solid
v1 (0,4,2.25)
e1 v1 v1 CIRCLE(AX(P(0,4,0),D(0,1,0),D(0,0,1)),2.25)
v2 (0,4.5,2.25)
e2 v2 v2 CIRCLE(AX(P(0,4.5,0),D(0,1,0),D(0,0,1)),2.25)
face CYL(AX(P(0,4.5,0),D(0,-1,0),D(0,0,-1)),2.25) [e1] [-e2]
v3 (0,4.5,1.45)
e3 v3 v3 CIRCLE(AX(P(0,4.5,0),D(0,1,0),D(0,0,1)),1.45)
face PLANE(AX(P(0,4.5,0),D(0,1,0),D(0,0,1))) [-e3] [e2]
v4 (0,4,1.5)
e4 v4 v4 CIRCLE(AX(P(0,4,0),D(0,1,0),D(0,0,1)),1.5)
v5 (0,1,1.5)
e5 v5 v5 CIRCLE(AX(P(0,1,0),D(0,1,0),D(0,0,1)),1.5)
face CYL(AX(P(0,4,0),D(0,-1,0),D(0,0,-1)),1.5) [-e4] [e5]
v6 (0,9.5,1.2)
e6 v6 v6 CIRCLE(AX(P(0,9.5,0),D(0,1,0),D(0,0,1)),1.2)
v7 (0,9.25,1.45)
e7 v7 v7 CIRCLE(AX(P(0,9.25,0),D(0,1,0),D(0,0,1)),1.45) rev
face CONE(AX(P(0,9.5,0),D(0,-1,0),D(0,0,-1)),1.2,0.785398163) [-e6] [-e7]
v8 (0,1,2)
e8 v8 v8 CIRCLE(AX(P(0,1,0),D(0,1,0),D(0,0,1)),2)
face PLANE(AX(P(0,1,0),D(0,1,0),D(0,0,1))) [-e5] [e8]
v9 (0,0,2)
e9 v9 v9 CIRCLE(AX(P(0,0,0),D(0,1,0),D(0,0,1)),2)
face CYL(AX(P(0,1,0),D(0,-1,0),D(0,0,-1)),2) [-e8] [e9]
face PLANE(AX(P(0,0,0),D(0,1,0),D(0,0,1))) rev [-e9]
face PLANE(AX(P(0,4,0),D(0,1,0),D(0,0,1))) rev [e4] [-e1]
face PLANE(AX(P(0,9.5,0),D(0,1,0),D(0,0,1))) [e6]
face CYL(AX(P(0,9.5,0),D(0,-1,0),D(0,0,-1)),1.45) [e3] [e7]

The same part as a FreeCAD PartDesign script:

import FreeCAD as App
import Part
import Sketcher
from FreeCAD import Vector


def edges_at(feature, points):
    """Names of the edges that pass closest to the given points."""
    edges = feature.Shape.Edges
    near = lambda p: min(range(len(edges)), key=lambda i: edges[i].distToShape(Part.Vertex(*p))[0])
    return sorted({f"Edge{near(p) + 1}" for p in points})

doc = App.newDocument("Part")
body = doc.addObject("PartDesign::Body", "Body")

# Sketch on XZ plane
sketch1 = body.newObject("Sketcher::SketchObject", "Sketch")
sketch1.AttachmentSupport = (doc.getObject("XZ_Plane"), [""])
sketch1.MapMode = "FlatFace"
sketch1.addGeometry(Part.Circle(Vector(0, 0, 0), Vector(0, 0, 1), 2), False)
sketch1.addConstraint([
    Sketcher.Constraint("Coincident", 0, 3, -1, 1),
    Sketcher.Constraint("Diameter", 0, 4.0),
])
pad1 = body.newObject("PartDesign::Pad", "Pad")
pad1.Profile = sketch1
pad1.Length = 1
pad1.Reversed = True

# Sketch on XZ plane
sketch2 = body.newObject("Sketcher::SketchObject", "Sketch001")
sketch2.AttachmentSupport = (doc.getObject("XZ_Plane"), [""])
sketch2.MapMode = "FlatFace"
sketch2.AttachmentOffset = App.Placement(Vector(0, 0, -1), App.Rotation())
sketch2.addGeometry(Part.Circle(Vector(0, 0, 0), Vector(0, 0, 1), 1.5), False)
sketch2.addConstraint([
    Sketcher.Constraint("Coincident", 0, 3, -1, 1),
    Sketcher.Constraint("Diameter", 0, 3.0),
])
pad2 = body.newObject("PartDesign::Pad", "Pad001")
pad2.Profile = sketch2
pad2.Length = 3
pad2.Reversed = True

# Sketch on XZ plane
sketch3 = body.newObject("Sketcher::SketchObject", "Sketch002")
sketch3.AttachmentSupport = (doc.getObject("XZ_Plane"), [""])
sketch3.MapMode = "FlatFace"
sketch3.AttachmentOffset = App.Placement(Vector(0, 0, -4), App.Rotation())
sketch3.addGeometry(Part.Circle(Vector(0, 0, 0), Vector(0, 0, 1), 2.2), False)
sketch3.addConstraint([
    Sketcher.Constraint("Coincident", 0, 3, -1, 1),
    Sketcher.Constraint("Diameter", 0, 4.5),
])
pad3 = body.newObject("PartDesign::Pad", "Pad002")
pad3.Profile = sketch3
pad3.Length = 0.5
pad3.Reversed = True

# Sketch on XZ plane
sketch4 = body.newObject("Sketcher::SketchObject", "Sketch003")
sketch4.AttachmentSupport = (doc.getObject("XZ_Plane"), [""])
sketch4.MapMode = "FlatFace"
sketch4.AttachmentOffset = App.Placement(Vector(0, 0, -4.5), App.Rotation())
sketch4.addGeometry(Part.Circle(Vector(0, 0, 0), Vector(0, 0, 1), 1.4), False)
sketch4.addConstraint([
    Sketcher.Constraint("Coincident", 0, 3, -1, 1),
    Sketcher.Constraint("Diameter", 0, 2.9),
])
pad4 = body.newObject("PartDesign::Pad", "Pad003")
pad4.Profile = sketch4
pad4.Length = 5
pad4.Reversed = True
doc.recompute()

chamfer = body.newObject("PartDesign::Chamfer", "Chamfer")
chamfer.Base = (pad4, edges_at(pad4, [(0, 9.5, -1.45)]))
chamfer.Size = 0.25

doc.recompute()
